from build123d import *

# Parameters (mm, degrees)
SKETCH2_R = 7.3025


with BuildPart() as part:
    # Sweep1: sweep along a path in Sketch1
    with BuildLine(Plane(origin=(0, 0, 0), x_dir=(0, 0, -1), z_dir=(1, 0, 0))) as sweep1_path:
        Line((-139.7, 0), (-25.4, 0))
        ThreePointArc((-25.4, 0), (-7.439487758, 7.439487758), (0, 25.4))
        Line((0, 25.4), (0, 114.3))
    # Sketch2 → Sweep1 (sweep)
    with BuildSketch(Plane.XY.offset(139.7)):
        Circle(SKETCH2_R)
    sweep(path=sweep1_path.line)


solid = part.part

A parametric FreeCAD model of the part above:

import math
import FreeCAD as App
import Part
import Sketcher
Q = App.Units.Quantity

doc = App.newDocument("Part")
body = doc.addObject("PartDesign::Body", "Body")

# Sketch on XY plane
sketch1 = body.newObject("Sketcher::SketchObject", "Sketch")
sketch1.AttachmentSupport = (doc.getObject("XY_Plane"), [""])
sketch1.MapMode = "FlatFace"
sketch1.AttachmentOffset = App.Placement(App.Vector(0, 0, 5.5 * 25.4), App.Rotation())
sketch1.addGeometry(Part.Circle(App.Vector(0, 0, 0), App.Vector(0, 0, 1), 7.3025), False)
sketch1.addConstraint([
    Sketcher.Constraint("Coincident", 0, 3, -1, 1),
    Sketcher.Constraint("Diameter", 0, Q("0.575 in")),
])

# Sketch on YZ plane
sketch2 = body.newObject("Sketcher::SketchObject", "Sketch001")
sketch2.AttachmentSupport = (doc.getObject("YZ_Plane"), [""])
sketch2.MapMode = "FlatFace"
sketch2.addGeometry([
    Part.LineSegment(App.Vector(0, 139.7, 0), App.Vector(0, 25.4, 0)),
    Part.ArcOfCircle(Part.Circle(App.Vector(25.4, 25.4, 0), App.Vector(0, 0, 1), 25.4), math.radians(180), math.radians(270)),
    Part.LineSegment(App.Vector(25.4, 0, 0), App.Vector(114.3, 0, 0)),
], False)
sketch2.addConstraint([
    Sketcher.Constraint("Tangent", 0, 2, 1, 1),
    Sketcher.Constraint("Tangent", 1, 2, 2, 1),
    Sketcher.Constraint("Vertical", 0),
    Sketcher.Constraint("Horizontal", 2),
    Sketcher.Constraint("PointOnObject", 0, 1, -2),
    Sketcher.Constraint("PointOnObject", 1, 2, -1),
    Sketcher.Constraint("Radius", 1, Q("1 in")),
    Sketcher.Constraint("DistanceX", 2, 1, 2, 2, Q("3.5 in")),
    Sketcher.Constraint("DistanceY", 0, 2, 0, 1, Q("4.5 in")),
])
doc.recompute()

additivepipe = body.newObject("PartDesign::AdditivePipe", "AdditivePipe")
additivepipe.Profile = sketch1
additivepipe.Spine = (sketch2, ["Edge1", "Edge2", "Edge3"])

doc.recompute()
